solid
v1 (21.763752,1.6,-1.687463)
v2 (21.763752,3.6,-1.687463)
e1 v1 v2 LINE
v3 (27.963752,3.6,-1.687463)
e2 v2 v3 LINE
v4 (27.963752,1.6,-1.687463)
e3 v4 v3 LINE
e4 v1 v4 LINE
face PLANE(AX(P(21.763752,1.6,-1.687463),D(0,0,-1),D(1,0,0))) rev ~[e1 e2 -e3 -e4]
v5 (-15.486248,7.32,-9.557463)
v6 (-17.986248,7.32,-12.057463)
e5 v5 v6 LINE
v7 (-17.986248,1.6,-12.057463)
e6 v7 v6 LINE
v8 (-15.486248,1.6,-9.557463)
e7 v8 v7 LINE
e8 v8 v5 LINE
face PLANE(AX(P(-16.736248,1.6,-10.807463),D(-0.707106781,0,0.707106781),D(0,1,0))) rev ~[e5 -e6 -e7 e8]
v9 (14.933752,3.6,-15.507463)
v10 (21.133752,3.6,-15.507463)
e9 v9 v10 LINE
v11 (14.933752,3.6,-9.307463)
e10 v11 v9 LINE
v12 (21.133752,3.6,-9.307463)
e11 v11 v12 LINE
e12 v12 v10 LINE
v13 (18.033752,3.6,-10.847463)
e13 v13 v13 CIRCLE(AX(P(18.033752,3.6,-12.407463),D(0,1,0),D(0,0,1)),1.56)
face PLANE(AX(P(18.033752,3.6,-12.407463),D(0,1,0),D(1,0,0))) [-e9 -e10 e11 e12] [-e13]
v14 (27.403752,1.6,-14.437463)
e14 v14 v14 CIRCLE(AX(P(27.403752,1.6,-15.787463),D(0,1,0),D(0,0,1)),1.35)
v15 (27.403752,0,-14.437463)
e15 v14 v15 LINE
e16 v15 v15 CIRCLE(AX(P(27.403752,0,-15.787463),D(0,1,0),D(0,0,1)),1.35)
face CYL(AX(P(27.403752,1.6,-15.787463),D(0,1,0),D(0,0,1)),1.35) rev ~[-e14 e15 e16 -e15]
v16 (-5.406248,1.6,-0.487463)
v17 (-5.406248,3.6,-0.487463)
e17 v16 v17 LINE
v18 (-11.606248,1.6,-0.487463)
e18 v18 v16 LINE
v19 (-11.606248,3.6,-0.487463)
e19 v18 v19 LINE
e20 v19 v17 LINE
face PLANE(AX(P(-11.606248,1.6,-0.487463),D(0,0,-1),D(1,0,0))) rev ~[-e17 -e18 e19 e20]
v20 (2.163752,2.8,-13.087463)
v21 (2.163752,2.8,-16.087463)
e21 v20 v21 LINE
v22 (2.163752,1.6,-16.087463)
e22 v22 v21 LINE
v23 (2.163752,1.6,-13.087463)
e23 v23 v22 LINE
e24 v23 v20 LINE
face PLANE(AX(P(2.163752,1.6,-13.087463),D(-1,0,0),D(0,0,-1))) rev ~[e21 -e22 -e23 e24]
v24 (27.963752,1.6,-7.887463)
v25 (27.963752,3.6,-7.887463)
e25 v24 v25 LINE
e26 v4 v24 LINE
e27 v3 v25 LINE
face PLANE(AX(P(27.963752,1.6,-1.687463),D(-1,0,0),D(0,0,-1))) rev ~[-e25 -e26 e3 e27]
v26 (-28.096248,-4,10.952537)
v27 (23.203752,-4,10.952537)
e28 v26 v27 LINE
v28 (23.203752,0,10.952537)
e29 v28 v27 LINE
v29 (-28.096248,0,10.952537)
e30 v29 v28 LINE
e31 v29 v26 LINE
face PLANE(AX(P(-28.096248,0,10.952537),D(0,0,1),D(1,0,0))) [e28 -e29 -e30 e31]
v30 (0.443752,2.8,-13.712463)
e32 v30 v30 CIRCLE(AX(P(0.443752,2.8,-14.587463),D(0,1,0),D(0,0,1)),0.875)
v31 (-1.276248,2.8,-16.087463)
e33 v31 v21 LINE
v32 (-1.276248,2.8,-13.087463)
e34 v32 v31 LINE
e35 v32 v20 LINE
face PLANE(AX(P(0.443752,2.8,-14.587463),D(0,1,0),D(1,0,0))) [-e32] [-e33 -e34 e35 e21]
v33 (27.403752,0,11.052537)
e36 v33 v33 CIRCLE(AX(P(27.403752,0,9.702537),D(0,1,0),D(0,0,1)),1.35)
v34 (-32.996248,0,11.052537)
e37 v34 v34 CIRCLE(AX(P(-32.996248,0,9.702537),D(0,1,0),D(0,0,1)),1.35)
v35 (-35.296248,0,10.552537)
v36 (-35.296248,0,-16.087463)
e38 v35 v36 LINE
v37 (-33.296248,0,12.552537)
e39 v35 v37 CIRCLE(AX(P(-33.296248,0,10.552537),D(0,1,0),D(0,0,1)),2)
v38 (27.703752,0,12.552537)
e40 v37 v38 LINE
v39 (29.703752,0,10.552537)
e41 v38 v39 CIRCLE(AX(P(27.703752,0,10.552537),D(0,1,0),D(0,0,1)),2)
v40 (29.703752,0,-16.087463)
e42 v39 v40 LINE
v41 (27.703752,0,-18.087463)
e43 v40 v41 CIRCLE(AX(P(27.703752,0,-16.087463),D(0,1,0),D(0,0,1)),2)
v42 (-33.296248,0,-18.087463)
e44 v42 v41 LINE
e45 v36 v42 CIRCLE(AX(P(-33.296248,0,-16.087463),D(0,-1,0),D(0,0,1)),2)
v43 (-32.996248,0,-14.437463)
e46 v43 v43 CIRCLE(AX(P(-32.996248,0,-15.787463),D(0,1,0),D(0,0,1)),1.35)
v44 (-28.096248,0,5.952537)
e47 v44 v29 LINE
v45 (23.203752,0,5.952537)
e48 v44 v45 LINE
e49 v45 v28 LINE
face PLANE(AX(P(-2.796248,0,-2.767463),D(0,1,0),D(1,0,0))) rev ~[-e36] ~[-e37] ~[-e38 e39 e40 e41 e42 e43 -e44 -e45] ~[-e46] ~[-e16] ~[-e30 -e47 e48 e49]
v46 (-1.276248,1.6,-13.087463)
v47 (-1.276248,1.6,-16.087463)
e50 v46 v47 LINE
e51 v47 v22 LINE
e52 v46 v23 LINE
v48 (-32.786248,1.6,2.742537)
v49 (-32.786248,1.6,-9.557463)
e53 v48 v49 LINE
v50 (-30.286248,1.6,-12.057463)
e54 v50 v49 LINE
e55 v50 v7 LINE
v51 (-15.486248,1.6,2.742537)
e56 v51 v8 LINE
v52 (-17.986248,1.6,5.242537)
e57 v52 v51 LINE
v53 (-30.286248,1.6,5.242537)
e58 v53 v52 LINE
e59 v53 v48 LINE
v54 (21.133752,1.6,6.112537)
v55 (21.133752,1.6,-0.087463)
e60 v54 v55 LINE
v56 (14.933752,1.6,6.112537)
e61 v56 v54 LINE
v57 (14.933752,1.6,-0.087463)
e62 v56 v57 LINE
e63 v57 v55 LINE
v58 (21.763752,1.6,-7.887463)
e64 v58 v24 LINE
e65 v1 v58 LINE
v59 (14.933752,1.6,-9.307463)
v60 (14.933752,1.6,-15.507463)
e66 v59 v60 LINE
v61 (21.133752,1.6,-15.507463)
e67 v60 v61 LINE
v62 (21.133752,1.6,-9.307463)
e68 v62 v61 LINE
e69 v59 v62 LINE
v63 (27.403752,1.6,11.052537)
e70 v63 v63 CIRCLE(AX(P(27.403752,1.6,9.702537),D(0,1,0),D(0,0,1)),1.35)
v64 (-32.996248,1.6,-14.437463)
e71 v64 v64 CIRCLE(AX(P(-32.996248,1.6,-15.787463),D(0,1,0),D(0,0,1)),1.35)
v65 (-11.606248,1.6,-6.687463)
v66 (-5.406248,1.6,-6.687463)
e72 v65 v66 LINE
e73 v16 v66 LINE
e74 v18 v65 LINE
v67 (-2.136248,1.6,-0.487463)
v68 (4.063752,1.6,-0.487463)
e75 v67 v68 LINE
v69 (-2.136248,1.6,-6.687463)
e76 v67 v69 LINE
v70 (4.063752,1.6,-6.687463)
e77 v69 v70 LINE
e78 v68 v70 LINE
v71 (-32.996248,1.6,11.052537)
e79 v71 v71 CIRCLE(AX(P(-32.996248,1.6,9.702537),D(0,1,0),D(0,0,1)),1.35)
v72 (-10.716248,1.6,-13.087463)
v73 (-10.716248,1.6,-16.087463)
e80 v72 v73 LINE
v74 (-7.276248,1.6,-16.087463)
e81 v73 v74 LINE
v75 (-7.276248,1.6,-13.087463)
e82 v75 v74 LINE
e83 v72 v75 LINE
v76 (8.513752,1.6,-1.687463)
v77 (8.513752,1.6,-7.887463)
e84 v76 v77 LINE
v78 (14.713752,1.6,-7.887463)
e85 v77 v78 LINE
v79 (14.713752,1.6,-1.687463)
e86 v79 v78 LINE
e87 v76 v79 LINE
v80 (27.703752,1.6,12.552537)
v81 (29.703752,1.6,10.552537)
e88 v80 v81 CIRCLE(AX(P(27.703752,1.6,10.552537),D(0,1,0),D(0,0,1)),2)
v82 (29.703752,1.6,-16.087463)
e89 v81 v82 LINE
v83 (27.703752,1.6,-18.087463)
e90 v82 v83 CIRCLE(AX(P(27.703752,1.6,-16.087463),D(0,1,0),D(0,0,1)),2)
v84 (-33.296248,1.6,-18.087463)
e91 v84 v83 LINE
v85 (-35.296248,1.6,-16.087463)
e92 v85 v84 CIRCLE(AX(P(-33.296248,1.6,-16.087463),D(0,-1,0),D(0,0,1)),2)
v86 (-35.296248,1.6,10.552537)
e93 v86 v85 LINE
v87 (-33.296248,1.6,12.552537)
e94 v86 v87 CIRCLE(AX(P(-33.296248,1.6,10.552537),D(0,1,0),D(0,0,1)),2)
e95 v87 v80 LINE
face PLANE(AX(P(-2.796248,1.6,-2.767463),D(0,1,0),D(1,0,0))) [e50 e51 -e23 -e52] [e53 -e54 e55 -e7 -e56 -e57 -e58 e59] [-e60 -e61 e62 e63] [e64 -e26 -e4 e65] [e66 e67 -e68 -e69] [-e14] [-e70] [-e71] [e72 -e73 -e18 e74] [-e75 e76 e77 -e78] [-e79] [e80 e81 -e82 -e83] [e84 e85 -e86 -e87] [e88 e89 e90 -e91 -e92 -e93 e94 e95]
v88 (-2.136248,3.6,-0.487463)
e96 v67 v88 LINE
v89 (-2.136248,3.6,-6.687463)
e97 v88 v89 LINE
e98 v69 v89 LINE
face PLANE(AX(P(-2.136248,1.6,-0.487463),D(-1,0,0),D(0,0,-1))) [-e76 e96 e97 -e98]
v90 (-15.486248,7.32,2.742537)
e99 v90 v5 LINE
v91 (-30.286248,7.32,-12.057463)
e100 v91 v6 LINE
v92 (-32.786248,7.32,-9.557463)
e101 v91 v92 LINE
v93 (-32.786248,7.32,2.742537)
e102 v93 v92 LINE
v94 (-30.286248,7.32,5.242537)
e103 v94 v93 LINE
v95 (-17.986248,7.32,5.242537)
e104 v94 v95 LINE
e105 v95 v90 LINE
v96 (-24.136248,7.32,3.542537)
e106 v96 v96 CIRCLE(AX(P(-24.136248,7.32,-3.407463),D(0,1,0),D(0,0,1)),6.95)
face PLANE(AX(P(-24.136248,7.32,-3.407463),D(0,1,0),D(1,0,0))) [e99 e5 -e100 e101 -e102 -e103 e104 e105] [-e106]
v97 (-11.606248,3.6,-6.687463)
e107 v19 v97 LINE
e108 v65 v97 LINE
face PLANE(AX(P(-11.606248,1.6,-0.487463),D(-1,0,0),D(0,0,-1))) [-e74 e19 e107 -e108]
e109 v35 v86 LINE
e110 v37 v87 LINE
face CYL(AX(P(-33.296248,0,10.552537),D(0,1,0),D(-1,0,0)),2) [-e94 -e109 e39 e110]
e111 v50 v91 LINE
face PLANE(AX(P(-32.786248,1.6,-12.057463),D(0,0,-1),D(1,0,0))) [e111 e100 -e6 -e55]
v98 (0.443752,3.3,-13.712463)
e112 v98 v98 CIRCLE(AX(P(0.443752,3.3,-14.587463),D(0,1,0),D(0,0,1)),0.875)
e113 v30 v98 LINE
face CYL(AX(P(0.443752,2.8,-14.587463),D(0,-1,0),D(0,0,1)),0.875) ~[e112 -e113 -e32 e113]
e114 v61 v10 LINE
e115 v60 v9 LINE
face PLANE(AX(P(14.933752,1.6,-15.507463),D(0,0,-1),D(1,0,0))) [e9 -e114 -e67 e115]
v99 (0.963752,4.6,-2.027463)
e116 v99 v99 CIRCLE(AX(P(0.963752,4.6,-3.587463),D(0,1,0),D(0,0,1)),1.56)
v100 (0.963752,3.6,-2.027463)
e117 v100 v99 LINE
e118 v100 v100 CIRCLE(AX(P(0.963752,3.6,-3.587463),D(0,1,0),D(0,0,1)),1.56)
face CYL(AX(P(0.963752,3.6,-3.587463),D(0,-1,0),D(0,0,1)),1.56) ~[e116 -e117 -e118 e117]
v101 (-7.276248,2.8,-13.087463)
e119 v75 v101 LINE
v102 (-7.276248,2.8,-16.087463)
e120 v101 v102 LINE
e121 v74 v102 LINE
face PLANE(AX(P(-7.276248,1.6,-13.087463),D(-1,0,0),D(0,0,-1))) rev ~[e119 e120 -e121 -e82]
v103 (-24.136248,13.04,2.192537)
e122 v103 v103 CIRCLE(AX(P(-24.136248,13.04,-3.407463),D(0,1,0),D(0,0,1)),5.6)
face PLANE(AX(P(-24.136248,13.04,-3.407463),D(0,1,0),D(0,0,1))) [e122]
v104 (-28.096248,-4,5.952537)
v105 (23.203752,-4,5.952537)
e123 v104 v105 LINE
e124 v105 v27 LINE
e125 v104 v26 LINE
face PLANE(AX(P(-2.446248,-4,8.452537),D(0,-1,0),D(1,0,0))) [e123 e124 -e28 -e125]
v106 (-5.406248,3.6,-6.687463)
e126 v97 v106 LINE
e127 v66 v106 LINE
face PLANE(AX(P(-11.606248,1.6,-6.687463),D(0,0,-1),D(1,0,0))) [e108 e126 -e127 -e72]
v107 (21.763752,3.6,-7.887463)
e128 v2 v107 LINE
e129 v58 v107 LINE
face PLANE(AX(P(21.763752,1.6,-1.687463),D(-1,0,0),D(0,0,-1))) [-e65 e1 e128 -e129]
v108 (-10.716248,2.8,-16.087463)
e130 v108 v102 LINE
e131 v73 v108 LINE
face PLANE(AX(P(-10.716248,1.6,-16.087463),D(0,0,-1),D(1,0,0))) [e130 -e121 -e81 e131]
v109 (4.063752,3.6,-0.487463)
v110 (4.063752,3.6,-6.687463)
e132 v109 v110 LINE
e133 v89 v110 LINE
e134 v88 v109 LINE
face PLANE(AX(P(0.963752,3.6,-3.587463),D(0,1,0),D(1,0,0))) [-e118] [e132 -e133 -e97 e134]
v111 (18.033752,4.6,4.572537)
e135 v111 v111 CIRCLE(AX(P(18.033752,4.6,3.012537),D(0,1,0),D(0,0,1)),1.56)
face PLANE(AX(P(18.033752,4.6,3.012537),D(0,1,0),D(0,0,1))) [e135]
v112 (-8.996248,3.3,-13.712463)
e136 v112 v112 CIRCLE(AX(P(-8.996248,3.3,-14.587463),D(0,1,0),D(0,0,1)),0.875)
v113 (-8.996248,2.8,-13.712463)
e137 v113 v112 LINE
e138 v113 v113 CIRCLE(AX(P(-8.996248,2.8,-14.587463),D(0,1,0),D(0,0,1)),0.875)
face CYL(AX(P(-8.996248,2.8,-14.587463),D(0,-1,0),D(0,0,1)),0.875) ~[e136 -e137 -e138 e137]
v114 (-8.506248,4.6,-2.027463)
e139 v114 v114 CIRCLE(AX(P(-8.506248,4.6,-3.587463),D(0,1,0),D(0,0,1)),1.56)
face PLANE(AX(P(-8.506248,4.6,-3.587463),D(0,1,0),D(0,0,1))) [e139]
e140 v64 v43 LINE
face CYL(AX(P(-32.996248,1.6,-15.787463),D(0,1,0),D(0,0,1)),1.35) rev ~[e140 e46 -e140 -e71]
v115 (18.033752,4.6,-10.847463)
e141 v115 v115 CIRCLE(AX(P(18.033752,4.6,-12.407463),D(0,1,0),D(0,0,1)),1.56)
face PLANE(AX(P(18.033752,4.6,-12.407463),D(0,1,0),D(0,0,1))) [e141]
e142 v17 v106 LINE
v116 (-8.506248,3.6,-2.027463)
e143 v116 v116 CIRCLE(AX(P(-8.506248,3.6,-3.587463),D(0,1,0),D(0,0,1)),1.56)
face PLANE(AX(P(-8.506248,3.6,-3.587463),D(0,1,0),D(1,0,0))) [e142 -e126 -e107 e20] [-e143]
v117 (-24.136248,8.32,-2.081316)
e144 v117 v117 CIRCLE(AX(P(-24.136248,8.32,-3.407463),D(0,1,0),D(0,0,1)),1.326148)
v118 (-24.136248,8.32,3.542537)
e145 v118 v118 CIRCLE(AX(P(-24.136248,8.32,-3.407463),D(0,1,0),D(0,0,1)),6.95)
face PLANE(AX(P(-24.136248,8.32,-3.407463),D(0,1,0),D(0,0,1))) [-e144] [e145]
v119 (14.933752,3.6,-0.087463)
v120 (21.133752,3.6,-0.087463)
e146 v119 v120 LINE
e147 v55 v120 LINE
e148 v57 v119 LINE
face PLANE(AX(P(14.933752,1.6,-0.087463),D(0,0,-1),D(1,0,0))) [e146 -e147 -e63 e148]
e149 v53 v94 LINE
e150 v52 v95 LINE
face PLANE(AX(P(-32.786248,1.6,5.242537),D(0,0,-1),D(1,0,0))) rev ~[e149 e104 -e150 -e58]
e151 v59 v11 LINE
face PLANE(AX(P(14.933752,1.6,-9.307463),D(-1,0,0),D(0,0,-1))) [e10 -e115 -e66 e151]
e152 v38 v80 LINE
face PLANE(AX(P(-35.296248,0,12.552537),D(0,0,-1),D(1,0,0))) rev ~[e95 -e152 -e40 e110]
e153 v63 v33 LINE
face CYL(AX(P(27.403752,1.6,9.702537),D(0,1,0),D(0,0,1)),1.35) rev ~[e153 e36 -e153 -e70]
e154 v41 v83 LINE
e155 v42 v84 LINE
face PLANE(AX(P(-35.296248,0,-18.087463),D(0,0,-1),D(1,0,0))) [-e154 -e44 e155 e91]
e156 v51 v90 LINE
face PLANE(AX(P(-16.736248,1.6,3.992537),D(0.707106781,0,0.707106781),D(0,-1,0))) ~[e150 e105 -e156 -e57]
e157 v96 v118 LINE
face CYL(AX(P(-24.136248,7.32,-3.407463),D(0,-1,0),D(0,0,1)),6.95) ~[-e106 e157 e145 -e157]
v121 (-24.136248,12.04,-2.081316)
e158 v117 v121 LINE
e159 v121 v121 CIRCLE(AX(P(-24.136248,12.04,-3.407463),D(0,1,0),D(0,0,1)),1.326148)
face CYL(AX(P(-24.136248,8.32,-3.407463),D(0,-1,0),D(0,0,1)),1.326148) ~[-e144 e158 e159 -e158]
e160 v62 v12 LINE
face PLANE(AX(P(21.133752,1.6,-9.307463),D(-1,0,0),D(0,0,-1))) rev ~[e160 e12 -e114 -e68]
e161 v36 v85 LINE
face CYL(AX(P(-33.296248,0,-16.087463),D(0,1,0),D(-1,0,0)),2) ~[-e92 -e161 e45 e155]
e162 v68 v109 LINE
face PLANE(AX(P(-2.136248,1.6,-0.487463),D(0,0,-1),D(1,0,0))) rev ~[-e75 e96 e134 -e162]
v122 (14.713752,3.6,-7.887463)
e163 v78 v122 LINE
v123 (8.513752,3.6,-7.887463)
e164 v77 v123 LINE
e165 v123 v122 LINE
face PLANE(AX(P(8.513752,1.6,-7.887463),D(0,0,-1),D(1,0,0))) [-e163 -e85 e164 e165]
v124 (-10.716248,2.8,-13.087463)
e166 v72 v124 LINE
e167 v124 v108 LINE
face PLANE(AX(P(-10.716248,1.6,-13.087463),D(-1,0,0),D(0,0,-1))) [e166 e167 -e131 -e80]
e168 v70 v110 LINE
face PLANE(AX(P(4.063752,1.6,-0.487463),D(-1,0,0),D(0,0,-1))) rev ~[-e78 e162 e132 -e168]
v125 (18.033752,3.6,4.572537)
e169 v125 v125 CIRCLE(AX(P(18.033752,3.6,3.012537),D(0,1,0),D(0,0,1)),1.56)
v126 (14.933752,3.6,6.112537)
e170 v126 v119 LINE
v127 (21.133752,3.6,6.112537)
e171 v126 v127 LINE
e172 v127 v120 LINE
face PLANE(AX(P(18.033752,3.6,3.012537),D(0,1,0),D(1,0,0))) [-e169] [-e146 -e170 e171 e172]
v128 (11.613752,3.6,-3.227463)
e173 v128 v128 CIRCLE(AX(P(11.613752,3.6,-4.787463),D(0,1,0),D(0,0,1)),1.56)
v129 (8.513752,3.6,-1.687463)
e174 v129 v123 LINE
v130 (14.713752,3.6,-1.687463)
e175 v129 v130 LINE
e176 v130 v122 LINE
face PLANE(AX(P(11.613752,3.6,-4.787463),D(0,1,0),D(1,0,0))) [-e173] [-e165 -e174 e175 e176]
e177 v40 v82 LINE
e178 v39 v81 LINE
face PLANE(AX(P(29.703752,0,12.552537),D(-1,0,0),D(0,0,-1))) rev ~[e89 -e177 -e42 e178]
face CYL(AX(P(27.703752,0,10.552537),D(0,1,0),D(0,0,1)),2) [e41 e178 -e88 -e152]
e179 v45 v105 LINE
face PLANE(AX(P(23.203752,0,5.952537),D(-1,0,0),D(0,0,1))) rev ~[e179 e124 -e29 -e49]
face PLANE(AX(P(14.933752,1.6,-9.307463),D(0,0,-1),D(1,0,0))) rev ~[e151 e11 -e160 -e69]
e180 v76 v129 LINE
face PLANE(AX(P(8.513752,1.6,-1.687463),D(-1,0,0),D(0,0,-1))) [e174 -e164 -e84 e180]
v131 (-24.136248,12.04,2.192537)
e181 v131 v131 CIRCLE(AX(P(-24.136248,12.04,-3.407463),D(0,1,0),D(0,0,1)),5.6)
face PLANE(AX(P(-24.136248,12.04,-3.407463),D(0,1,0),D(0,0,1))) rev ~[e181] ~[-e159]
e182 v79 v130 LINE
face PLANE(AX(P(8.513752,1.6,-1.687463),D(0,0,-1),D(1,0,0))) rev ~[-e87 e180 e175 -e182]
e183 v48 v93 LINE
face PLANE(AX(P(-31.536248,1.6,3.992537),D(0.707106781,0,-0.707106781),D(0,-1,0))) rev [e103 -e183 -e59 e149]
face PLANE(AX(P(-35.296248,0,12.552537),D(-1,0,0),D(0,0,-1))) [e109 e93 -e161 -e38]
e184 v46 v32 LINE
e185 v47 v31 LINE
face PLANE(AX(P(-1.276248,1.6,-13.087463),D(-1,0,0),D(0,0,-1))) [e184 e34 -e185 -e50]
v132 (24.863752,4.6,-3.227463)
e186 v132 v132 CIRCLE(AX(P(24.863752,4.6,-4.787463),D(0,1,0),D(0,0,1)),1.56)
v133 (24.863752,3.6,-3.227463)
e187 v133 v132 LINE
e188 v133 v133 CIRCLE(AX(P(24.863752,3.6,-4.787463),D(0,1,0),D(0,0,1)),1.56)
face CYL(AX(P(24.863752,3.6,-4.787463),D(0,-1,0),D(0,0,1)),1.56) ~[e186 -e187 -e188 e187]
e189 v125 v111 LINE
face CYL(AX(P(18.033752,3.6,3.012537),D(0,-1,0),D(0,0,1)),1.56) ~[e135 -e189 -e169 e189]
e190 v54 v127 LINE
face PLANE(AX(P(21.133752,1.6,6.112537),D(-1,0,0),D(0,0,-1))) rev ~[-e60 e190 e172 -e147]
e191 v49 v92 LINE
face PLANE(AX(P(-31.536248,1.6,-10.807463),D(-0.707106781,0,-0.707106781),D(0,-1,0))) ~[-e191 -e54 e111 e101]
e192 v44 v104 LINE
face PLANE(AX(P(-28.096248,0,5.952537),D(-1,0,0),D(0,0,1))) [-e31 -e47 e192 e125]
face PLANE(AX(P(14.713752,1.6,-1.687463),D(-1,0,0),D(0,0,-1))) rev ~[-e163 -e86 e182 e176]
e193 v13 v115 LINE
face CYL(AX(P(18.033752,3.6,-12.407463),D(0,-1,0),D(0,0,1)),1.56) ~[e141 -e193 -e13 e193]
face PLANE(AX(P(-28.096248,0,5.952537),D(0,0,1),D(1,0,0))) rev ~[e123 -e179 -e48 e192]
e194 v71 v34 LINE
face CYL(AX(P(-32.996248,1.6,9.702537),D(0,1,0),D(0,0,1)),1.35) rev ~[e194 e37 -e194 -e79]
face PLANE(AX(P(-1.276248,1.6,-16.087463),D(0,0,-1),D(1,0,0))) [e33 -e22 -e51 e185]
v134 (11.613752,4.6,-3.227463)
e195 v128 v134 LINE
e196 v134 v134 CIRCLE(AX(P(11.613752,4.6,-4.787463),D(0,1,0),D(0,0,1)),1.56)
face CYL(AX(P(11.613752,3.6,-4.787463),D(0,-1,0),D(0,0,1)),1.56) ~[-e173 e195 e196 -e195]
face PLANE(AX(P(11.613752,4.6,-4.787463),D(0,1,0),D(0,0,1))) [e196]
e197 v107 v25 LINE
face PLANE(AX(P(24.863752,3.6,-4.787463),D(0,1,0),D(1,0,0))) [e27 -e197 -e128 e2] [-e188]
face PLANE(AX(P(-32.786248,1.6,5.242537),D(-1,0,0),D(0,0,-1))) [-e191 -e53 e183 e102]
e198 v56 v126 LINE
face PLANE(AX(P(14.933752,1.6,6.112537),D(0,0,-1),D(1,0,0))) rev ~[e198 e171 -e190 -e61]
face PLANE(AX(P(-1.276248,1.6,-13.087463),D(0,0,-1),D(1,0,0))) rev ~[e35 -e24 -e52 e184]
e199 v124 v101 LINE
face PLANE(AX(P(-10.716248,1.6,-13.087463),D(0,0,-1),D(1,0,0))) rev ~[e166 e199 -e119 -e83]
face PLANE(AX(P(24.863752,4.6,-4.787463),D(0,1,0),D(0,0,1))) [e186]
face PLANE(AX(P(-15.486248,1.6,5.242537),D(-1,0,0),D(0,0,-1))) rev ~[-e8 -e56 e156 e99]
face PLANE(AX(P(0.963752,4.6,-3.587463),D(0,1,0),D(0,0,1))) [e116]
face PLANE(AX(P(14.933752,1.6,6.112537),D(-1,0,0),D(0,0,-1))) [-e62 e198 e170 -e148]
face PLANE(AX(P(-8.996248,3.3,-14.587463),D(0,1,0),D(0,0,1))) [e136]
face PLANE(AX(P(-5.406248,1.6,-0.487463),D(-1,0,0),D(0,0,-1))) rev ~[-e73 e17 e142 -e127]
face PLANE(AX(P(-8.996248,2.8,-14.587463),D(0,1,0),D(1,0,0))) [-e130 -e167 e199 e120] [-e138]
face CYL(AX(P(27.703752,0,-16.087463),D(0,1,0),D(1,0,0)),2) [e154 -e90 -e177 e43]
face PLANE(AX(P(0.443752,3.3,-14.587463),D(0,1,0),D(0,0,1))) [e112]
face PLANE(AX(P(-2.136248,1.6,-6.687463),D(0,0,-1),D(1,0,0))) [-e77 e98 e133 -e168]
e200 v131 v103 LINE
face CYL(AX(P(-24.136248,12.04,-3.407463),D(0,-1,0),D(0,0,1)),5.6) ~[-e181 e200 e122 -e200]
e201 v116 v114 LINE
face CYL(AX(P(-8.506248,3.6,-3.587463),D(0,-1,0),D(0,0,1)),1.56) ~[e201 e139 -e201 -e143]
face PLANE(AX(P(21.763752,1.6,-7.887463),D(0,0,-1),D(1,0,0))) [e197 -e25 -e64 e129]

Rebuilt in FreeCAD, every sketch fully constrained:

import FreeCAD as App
import Part
import Sketcher
from FreeCAD import Vector
Q = App.Units.Quantity


def edges_at(feature, points):
    """Names of the edges that pass closest to the given points."""
    edges = feature.Shape.Edges
    near = lambda p: min(range(len(edges)), key=lambda i: edges[i].distToShape(Part.Vertex(*p))[0])
    return sorted({f"Edge{near(p) + 1}" for p in points})

doc = App.newDocument("Part")
params = doc.addObject("Spreadsheet::Sheet", "Params")
for row, (alias, value) in enumerate([
    ("sketch1_width", "65 mm"),
    ("sketch1_height", "30.64 mm"),
    ("pad1_length", "1.6 mm"),
    ("fillet_radius", "2 mm"),
    ("sketch2_diameter", "2.7 mm"),
    ("pocket1_length", "1.6 mm"),
    ("sketch3_height", "5 mm"),
    ("sketch3_width", "51.3 mm"),
    ("pad2_length", "4 mm"),
    ("sketch4_width", "17.3 mm"),
    ("pad3_length", "5.72 mm"),
    ("chamfer_size", "2.5 mm"),
    ("sketch5_diameter", "13.9 mm"),
    ("pad4_length", "1 mm"),
    ("pad5_length", "3.72 mm"),
    ("sketch7_diameter", "11.2 mm"),
    ("pad6_length", "1 mm"),
    ("sketch8_width", "6.2 mm"),
    ("pad7_length", "2 mm"),
    ("sketch9_diameter", "3.12 mm"),
    ("pad8_length", "1 mm"),
    ("sketch10_height", "3 mm"),
    ("sketch10_width", "3.44 mm"),
    ("pad9_length", "1.2 mm"),
    ("sketch11_diameter", "1.75 mm"),
    ("pad10_length", "0.5 mm"),
], start=1):
    params.set(f"A{row}", alias)
    params.set(f"B{row}", "=" + value)
    params.setAlias(f"B{row}", alias)

body = doc.addObject("PartDesign::Body", "Body")

# Sketch on XZ plane
sketch1 = body.newObject("Sketcher::SketchObject", "Sketch")
sketch1.AttachmentSupport = (doc.getObject("XZ_Plane"), [""])
sketch1.MapMode = "FlatFace"
sketch1.addGeometry(Part.LineSegment(Vector(-35.296248, -18.087463, 0), Vector(-35.296248, 12.552537, 0)), False)
sketch1.addGeometry(Part.LineSegment(Vector(-35.296248, 12.552537, 0), Vector(29.703752, 12.552537, 0)), False)
sketch1.addGeometry(Part.LineSegment(Vector(29.703752, 12.552537, 0), Vector(29.703752, -18.087463, 0)), False)
sketch1.addGeometry(Part.LineSegment(Vector(29.703752, -18.087463, 0), Vector(-35.296248, -18.087463, 0)), False)
sketch1.addConstraint(Sketcher.Constraint("Coincident", 0, 2, 1, 1))
sketch1.addConstraint(Sketcher.Constraint("Coincident", 1, 2, 2, 1))
sketch1.addConstraint(Sketcher.Constraint("Coincident", 2, 2, 3, 1))
sketch1.addConstraint(Sketcher.Constraint("Coincident", 3, 2, 0, 1))
sketch1.addConstraint(Sketcher.Constraint("Vertical", 0))
sketch1.addConstraint(Sketcher.Constraint("Horizontal", 1))
sketch1.addConstraint(Sketcher.Constraint("Vertical", 2))
sketch1.addConstraint(Sketcher.Constraint("Horizontal", 3))
sketch1.addConstraint(Sketcher.Constraint("DistanceX", 1, 1, 1, 2, Q("65 mm")))
sketch1.addConstraint(Sketcher.Constraint("DistanceY", 0, 1, 0, 2, Q("30.64 mm")))
sketch1.addConstraint(Sketcher.Constraint("DistanceX", 0, 2, -1, 1, Q("35.296248 mm")))
sketch1.addConstraint(Sketcher.Constraint("DistanceY", -1, 1, 0, 2, Q("12.552537 mm")))
sketch1.setExpression("Constraints[8]", "Params.sketch1_width")
sketch1.setExpression("Constraints[9]", "Params.sketch1_height")
pad1 = body.newObject("PartDesign::Pad", "Pad")
pad1.Profile = sketch1
pad1.setExpression("Length", "Params.pad1_length")
pad1.Reversed = True
doc.recompute()

fillet = body.newObject("PartDesign::Fillet", "Fillet")
fillet.Base = (pad1, edges_at(pad1, [
    (-35.296, 0.8, -18.087),
    (29.704, 0.8, -18.087),
    (29.704, 0.8, 12.553),
    (-35.296, 0.8, 12.553),
]))
fillet.setExpression("Radius", "Params.fillet_radius")

# Sketch on XZ plane
sketch2 = body.newObject("Sketcher::SketchObject", "Sketch001")
sketch2.AttachmentSupport = (doc.getObject("XZ_Plane"), [""])
sketch2.MapMode = "FlatFace"
sketch2.AttachmentOffset = App.Placement(Vector(0, 0, -1.6), App.Rotation())
sketch2.addGeometry(Part.Circle(Vector(-32.996248, -15.787463, 0), Vector(0, 0, 1), 1.35), False)
sketch2.addGeometry(Part.Circle(Vector(27.403752, -15.787463, 0), Vector(0, 0, 1), 1.35), False)
sketch2.addGeometry(Part.Circle(Vector(27.403752, 9.702537, 0), Vector(0, 0, 1), 1.35), False)
sketch2.addGeometry(Part.Circle(Vector(-32.996248, 9.702537, 0), Vector(0, 0, 1), 1.35), False)
sketch2.addConstraint(Sketcher.Constraint("Equal", 0, 1))
sketch2.addConstraint(Sketcher.Constraint("Equal", 1, 2))
sketch2.addConstraint(Sketcher.Constraint("Equal", 2, 3))
sketch2.addConstraint(Sketcher.Constraint("Horizontal", 0, 3, 1, 3))
sketch2.addConstraint(Sketcher.Constraint("Horizontal", 2, 3, 3, 3))
sketch2.addConstraint(Sketcher.Constraint("Vertical", 1, 3, 2, 3))
sketch2.addConstraint(Sketcher.Constraint("Vertical", 0, 3, 3, 3))
sketch2.addConstraint(Sketcher.Constraint("Diameter", 0, Q("2.7 mm")))
sketch2.addConstraint(Sketcher.Constraint("DistanceX", 0, 3, 1, 3, Q("60.4 mm")))
sketch2.addConstraint(Sketcher.Constraint("DistanceY", 1, 3, 2, 3, Q("25.49 mm")))
sketch2.addConstraint(Sketcher.Constraint("DistanceX", 0, 3, -1, 1, Q("32.996248 mm")))
sketch2.addConstraint(Sketcher.Constraint("DistanceY", 0, 3, -1, 1, Q("15.787463 mm")))
sketch2.setExpression("Constraints[7]", "Params.sketch2_diameter")
pocket1 = body.newObject("PartDesign::Pocket", "Pocket")
pocket1.Profile = sketch2
pocket1.setExpression("Length", "Params.pocket1_length")
pocket1.Reversed = True

# Sketch on XZ plane
sketch3 = body.newObject("Sketcher::SketchObject", "Sketch002")
sketch3.AttachmentSupport = (doc.getObject("XZ_Plane"), [""])
sketch3.MapMode = "FlatFace"
sketch3.addGeometry(Part.LineSegment(Vector(-28.096248, 10.952537, 0), Vector(-28.096248, 5.952537, 0)), False)
sketch3.addGeometry(Part.LineSegment(Vector(-28.096248, 5.952537, 0), Vector(23.203752, 5.952537, 0)), False)
sketch3.addGeometry(Part.LineSegment(Vector(23.203752, 5.952537, 0), Vector(23.203752, 10.952537, 0)), False)
sketch3.addGeometry(Part.LineSegment(Vector(23.203752, 10.952537, 0), Vector(-28.096248, 10.952537, 0)), False)
sketch3.addConstraint(Sketcher.Constraint("Coincident", 0, 2, 1, 1))
sketch3.addConstraint(Sketcher.Constraint("Coincident", 1, 2, 2, 1))
sketch3.addConstraint(Sketcher.Constraint("Coincident", 2, 2, 3, 1))
sketch3.addConstraint(Sketcher.Constraint("Coincident", 3, 2, 0, 1))
sketch3.addConstraint(Sketcher.Constraint("Vertical", 0))
sketch3.addConstraint(Sketcher.Constraint("Horizontal", 1))
sketch3.addConstraint(Sketcher.Constraint("Vertical", 2))
sketch3.addConstraint(Sketcher.Constraint("Horizontal", 3))
sketch3.addConstraint(Sketcher.Constraint("DistanceY", 0, 2, 0, 1, Q("5 mm")))
sketch3.addConstraint(Sketcher.Constraint("DistanceX", 1, 1, 1, 2, Q("51.3 mm")))
sketch3.addConstraint(Sketcher.Constraint("DistanceX", 0, 2, -1, 1, Q("28.096248 mm")))
sketch3.addConstraint(Sketcher.Constraint("DistanceY", -1, 1, 0, 2, Q("5.952537 mm")))
sketch3.setExpression("Constraints[8]", "Params.sketch3_height")
sketch3.setExpression("Constraints[9]", "Params.sketch3_width")
pad2 = body.newObject("PartDesign::Pad", "Pad001")
pad2.Profile = sketch3
pad2.setExpression("Length", "Params.pad2_length")

# Sketch on XZ plane
sketch4 = body.newObject("Sketcher::SketchObject", "Sketch003")
sketch4.AttachmentSupport = (doc.getObject("XZ_Plane"), [""])
sketch4.MapMode = "FlatFace"
sketch4.AttachmentOffset = App.Placement(Vector(0, 0, -1.6), App.Rotation())
sketch4.addGeometry(Part.LineSegment(Vector(-32.786248, -12.057463, 0), Vector(-32.786248, 5.242537, 0)), False)
sketch4.addGeometry(Part.LineSegment(Vector(-32.786248, 5.242537, 0), Vector(-15.486248, 5.242537, 0)), False)
sketch4.addGeometry(Part.LineSegment(Vector(-15.486248, 5.242537, 0), Vector(-15.486248, -12.057463, 0)), False)
sketch4.addGeometry(Part.LineSegment(Vector(-15.486248, -12.057463, 0), Vector(-32.786248, -12.057463, 0)), False)
sketch4.addConstraint(Sketcher.Constraint("Coincident", 0, 2, 1, 1))
sketch4.addConstraint(Sketcher.Constraint("Coincident", 1, 2, 2, 1))
sketch4.addConstraint(Sketcher.Constraint("Coincident", 2, 2, 3, 1))
sketch4.addConstraint(Sketcher.Constraint("Coincident", 3, 2, 0, 1))
sketch4.addConstraint(Sketcher.Constraint("Vertical", 0))
sketch4.addConstraint(Sketcher.Constraint("Horizontal", 1))
sketch4.addConstraint(Sketcher.Constraint("Vertical", 2))
sketch4.addConstraint(Sketcher.Constraint("Horizontal", 3))
sketch4.addConstraint(Sketcher.Constraint("Equal", 3, 0))
sketch4.addConstraint(Sketcher.Constraint("DistanceX", 1, 1, 1, 2, Q("17.3 mm")))
sketch4.addConstraint(Sketcher.Constraint("DistanceX", 0, 2, -1, 1, Q("32.786248 mm")))
sketch4.addConstraint(Sketcher.Constraint("DistanceY", -1, 1, 0, 2, Q("5.242537 mm")))
sketch4.setExpression("Constraints[9]", "Params.sketch4_width")
pad3 = body.newObject("PartDesign::Pad", "Pad002")
pad3.Profile = sketch4
pad3.setExpression("Length", "Params.pad3_length")
pad3.Reversed = True
doc.recompute()

chamfer = body.newObject("PartDesign::Chamfer", "Chamfer")
chamfer.Base = (pad3, edges_at(pad3, [
    (-32.786, 4.46, -12.057),
    (-32.786, 4.46, 5.243),
    (-15.486, 4.46, 5.243),
    (-15.486, 4.46, -12.057),
]))
chamfer.setExpression("Size", "Params.chamfer_size")

# Sketch on XZ plane
sketch5 = body.newObject("Sketcher::SketchObject", "Sketch004")
sketch5.AttachmentSupport = (doc.getObject("XZ_Plane"), [""])
sketch5.MapMode = "FlatFace"
sketch5.AttachmentOffset = App.Placement(Vector(0, 0, -7.32), App.Rotation())
sketch5.addGeometry(Part.Circle(Vector(-24.136248, -3.407463, 0), Vector(0, 0, 1), 6.95), False)
sketch5.addConstraint(Sketcher.Constraint("Diameter", 0, Q("13.9 mm")))
sketch5.addConstraint(Sketcher.Constraint("DistanceX", 0, 3, -1, 1, Q("24.136248 mm")))
sketch5.addConstraint(Sketcher.Constraint("DistanceY", 0, 3, -1, 1, Q("3.407463 mm")))
sketch5.setExpression("Constraints[0]", "Params.sketch5_diameter")
pad4 = body.newObject("PartDesign::Pad", "Pad003")
pad4.Profile = sketch5
pad4.setExpression("Length", "Params.pad4_length")
pad4.Reversed = True

# Sketch on XZ plane
sketch6 = body.newObject("Sketcher::SketchObject", "Sketch005")
sketch6.AttachmentSupport = (doc.getObject("XZ_Plane"), [""])
sketch6.MapMode = "FlatFace"
sketch6.AttachmentOffset = App.Placement(Vector(0, 0, -8.32), App.Rotation())
sketch6.addGeometry(Part.Circle(Vector(-24.136248, -3.407463, 0), Vector(0, 0, 1), 1.326148), False)
sketch6.addConstraint(Sketcher.Constraint("Diameter", 0, Q("2.652295 mm")))
sketch6.addConstraint(Sketcher.Constraint("DistanceX", 0, 3, -1, 1, Q("24.136248 mm")))
sketch6.addConstraint(Sketcher.Constraint("DistanceY", 0, 3, -1, 1, Q("3.407463 mm")))
pad5 = body.newObject("PartDesign::Pad", "Pad004")
pad5.Profile = sketch6
pad5.setExpression("Length", "Params.pad5_length")
pad5.Reversed = True

# Sketch on XZ plane
sketch7 = body.newObject("Sketcher::SketchObject", "Sketch006")
sketch7.AttachmentSupport = (doc.getObject("XZ_Plane"), [""])
sketch7.MapMode = "FlatFace"
sketch7.AttachmentOffset = App.Placement(Vector(0, 0, -12.04), App.Rotation())
sketch7.addGeometry(Part.Circle(Vector(-24.136248, -3.407463, 0), Vector(0, 0, 1), 5.6), False)
sketch7.addConstraint(Sketcher.Constraint("Diameter", 0, Q("11.2 mm")))
sketch7.addConstraint(Sketcher.Constraint("DistanceX", 0, 3, -1, 1, Q("24.136248 mm")))
sketch7.addConstraint(Sketcher.Constraint("DistanceY", 0, 3, -1, 1, Q("3.407463 mm")))
sketch7.setExpression("Constraints[0]", "Params.sketch7_diameter")
pad6 = body.newObject("PartDesign::Pad", "Pad005")
pad6.Profile = sketch7
pad6.setExpression("Length", "Params.pad6_length")
pad6.Reversed = True

# Sketch on XZ plane
sketch8 = body.newObject("Sketcher::SketchObject", "Sketch007")
sketch8.AttachmentSupport = (doc.getObject("XZ_Plane"), [""])
sketch8.MapMode = "FlatFace"
sketch8.AttachmentOffset = App.Placement(Vector(0, 0, -1.6), App.Rotation())
sketch8.addGeometry(Part.LineSegment(Vector(-11.606248, -6.687463, 0), Vector(-11.606248, -0.487463, 0)), False)
sketch8.addGeometry(Part.LineSegment(Vector(-11.606248, -0.487463, 0), Vector(-5.406248, -0.487463, 0)), False)
sketch8.addGeometry(Part.LineSegment(Vector(-5.406248, -0.487463, 0), Vector(-5.406248, -6.687463, 0)), False)
sketch8.addGeometry(Part.LineSegment(Vector(-5.406248, -6.687463, 0), Vector(-11.606248, -6.687463, 0)), False)
sketch8.addGeometry(Part.LineSegment(Vector(-2.136248, -6.687463, 0), Vector(-2.136248, -0.487463, 0)), False)
sketch8.addGeometry(Part.LineSegment(Vector(-2.136248, -0.487463, 0), Vector(4.063752, -0.487463, 0)), False)
sketch8.addGeometry(Part.LineSegment(Vector(4.063752, -0.487463, 0), Vector(4.063752, -6.687463, 0)), False)
sketch8.addGeometry(Part.LineSegment(Vector(4.063752, -6.687463, 0), Vector(-2.136248, -6.687463, 0)), False)
sketch8.addGeometry(Part.LineSegment(Vector(8.513752, -7.887463, 0), Vector(8.513752, -1.687463, 0)), False)
sketch8.addGeometry(Part.LineSegment(Vector(8.513752, -1.687463, 0), Vector(14.713752, -1.687463, 0)), False)
sketch8.addGeometry(Part.LineSegment(Vector(14.713752, -1.687463, 0), Vector(14.713752, -7.887463, 0)), False)
sketch8.addGeometry(Part.LineSegment(Vector(14.713752, -7.887463, 0), Vector(8.513752, -7.887463, 0)), False)
sketch8.addGeometry(Part.LineSegment(Vector(14.933752, -15.507463, 0), Vector(14.933752, -9.307463, 0)), False)
sketch8.addGeometry(Part.LineSegment(Vector(14.933752, -9.307463, 0), Vector(21.133752, -9.307463, 0)), False)
sketch8.addGeometry(Part.LineSegment(Vector(21.133752, -9.307463, 0), Vector(21.133752, -15.507463, 0)), False)
sketch8.addGeometry(Part.LineSegment(Vector(21.133752, -15.507463, 0), Vector(14.933752, -15.507463, 0)), False)
sketch8.addGeometry(Part.LineSegment(Vector(21.763752, -7.887463, 0), Vector(21.763752, -1.687463, 0)), False)
sketch8.addGeometry(Part.LineSegment(Vector(21.763752, -1.687463, 0), Vector(27.963752, -1.687463, 0)), False)
sketch8.addGeometry(Part.LineSegment(Vector(27.963752, -1.687463, 0), Vector(27.963752, -7.887463, 0)), False)
sketch8.addGeometry(Part.LineSegment(Vector(27.963752, -7.887463, 0), Vector(21.763752, -7.887463, 0)), False)
sketch8.addGeometry(Part.LineSegment(Vector(14.933752, -0.087463, 0), Vector(14.933752, 6.112537, 0)), False)
sketch8.addGeometry(Part.LineSegment(Vector(14.933752, 6.112537, 0), Vector(21.133752, 6.112537, 0)), False)
sketch8.addGeometry(Part.LineSegment(Vector(21.133752, 6.112537, 0), Vector(21.133752, -0.087463, 0)), False)
sketch8.addGeometry(Part.LineSegment(Vector(21.133752, -0.087463, 0), Vector(14.933752, -0.087463, 0)), False)
sketch8.addConstraint(Sketcher.Constraint("Coincident", 0, 2, 1, 1))
sketch8.addConstraint(Sketcher.Constraint("Coincident", 1, 2, 2, 1))
sketch8.addConstraint(Sketcher.Constraint("Coincident", 2, 2, 3, 1))
sketch8.addConstraint(Sketcher.Constraint("Coincident", 3, 2, 0, 1))
sketch8.addConstraint(Sketcher.Constraint("Coincident", 4, 2, 5, 1))
sketch8.addConstraint(Sketcher.Constraint("Coincident", 5, 2, 6, 1))
sketch8.addConstraint(Sketcher.Constraint("Coincident", 6, 2, 7, 1))
sketch8.addConstraint(Sketcher.Constraint("Coincident", 7, 2, 4, 1))
sketch8.addConstraint(Sketcher.Constraint("Coincident", 8, 2, 9, 1))
sketch8.addConstraint(Sketcher.Constraint("Coincident", 9, 2, 10, 1))
sketch8.addConstraint(Sketcher.Constraint("Coincident", 10, 2, 11, 1))
sketch8.addConstraint(Sketcher.Constraint("Coincident", 11, 2, 8, 1))
sketch8.addConstraint(Sketcher.Constraint("Coincident", 12, 2, 13, 1))
sketch8.addConstraint(Sketcher.Constraint("Coincident", 13, 2, 14, 1))
sketch8.addConstraint(Sketcher.Constraint("Coincident", 14, 2, 15, 1))
sketch8.addConstraint(Sketcher.Constraint("Coincident", 15, 2, 12, 1))
sketch8.addConstraint(Sketcher.Constraint("Coincident", 16, 2, 17, 1))
sketch8.addConstraint(Sketcher.Constraint("Coincident", 17, 2, 18, 1))
sketch8.addConstraint(Sketcher.Constraint("Coincident", 18, 2, 19, 1))
sketch8.addConstraint(Sketcher.Constraint("Coincident", 19, 2, 16, 1))
sketch8.addConstraint(Sketcher.Constraint("Coincident", 20, 2, 21, 1))
sketch8.addConstraint(Sketcher.Constraint("Coincident", 21, 2, 22, 1))
sketch8.addConstraint(Sketcher.Constraint("Coincident", 22, 2, 23, 1))
sketch8.addConstraint(Sketcher.Constraint("Coincident", 23, 2, 20, 1))
sketch8.addConstraint(Sketcher.Constraint("Vertical", 0))
sketch8.addConstraint(Sketcher.Constraint("Horizontal", 1))
sketch8.addConstraint(Sketcher.Constraint("Vertical", 2))
sketch8.addConstraint(Sketcher.Constraint("Horizontal", 3))
sketch8.addConstraint(Sketcher.Constraint("Vertical", 4))
sketch8.addConstraint(Sketcher.Constraint("Horizontal", 5))
sketch8.addConstraint(Sketcher.Constraint("Vertical", 6))
sketch8.addConstraint(Sketcher.Constraint("Horizontal", 7))
sketch8.addConstraint(Sketcher.Constraint("Vertical", 8))
sketch8.addConstraint(Sketcher.Constraint("Horizontal", 9))
sketch8.addConstraint(Sketcher.Constraint("Vertical", 10))
sketch8.addConstraint(Sketcher.Constraint("Horizontal", 11))
sketch8.addConstraint(Sketcher.Constraint("Vertical", 12))
sketch8.addConstraint(Sketcher.Constraint("Horizontal", 13))
sketch8.addConstraint(Sketcher.Constraint("Vertical", 14))
sketch8.addConstraint(Sketcher.Constraint("Horizontal", 15))
sketch8.addConstraint(Sketcher.Constraint("Vertical", 16))
sketch8.addConstraint(Sketcher.Constraint("Horizontal", 17))
sketch8.addConstraint(Sketcher.Constraint("Vertical", 18))
sketch8.addConstraint(Sketcher.Constraint("Horizontal", 19))
sketch8.addConstraint(Sketcher.Constraint("Vertical", 20))
sketch8.addConstraint(Sketcher.Constraint("Horizontal", 21))
sketch8.addConstraint(Sketcher.Constraint("Vertical", 22))
sketch8.addConstraint(Sketcher.Constraint("Horizontal", 23))
sketch8.addConstraint(Sketcher.Constraint("Horizontal", 1, 2, 4, 2))
sketch8.addConstraint(Sketcher.Constraint("Horizontal", 3, 2, 6, 2))
sketch8.addConstraint(Sketcher.Constraint("Horizontal", 9, 2, 16, 2))
sketch8.addConstraint(Sketcher.Constraint("Horizontal", 11, 2, 18, 2))
sketch8.addConstraint(Sketcher.Constraint("Vertical", 15, 2, 20, 2))
sketch8.addConstraint(Sketcher.Constraint("Vertical", 14, 2, 21, 2))
sketch8.addConstraint(Sketcher.Constraint("Equal", 3, 5))
sketch8.addConstraint(Sketcher.Constraint("Equal", 7, 9))
sketch8.addConstraint(Sketcher.Constraint("Equal", 11, 13))
sketch8.addConstraint(Sketcher.Constraint("Equal", 15, 17))
sketch8.addConstraint(Sketcher.Constraint("Equal", 23, 0))
sketch8.addConstraint(Sketcher.Constraint("Equal", 6, 8))
sketch8.addConstraint(Sketcher.Constraint("Equal", 10, 12))
sketch8.addConstraint(Sketcher.Constraint("Equal", 18, 20))
sketch8.addConstraint(Sketcher.Constraint("DistanceX", 1, 1, 1, 2, Q("6.2 mm")))
sketch8.addConstraint(Sketcher.Constraint("DistanceY", 6, 2, 8, 2, Q("5 mm")))
sketch8.addConstraint(Sketcher.Constraint("DistanceY", 10, 2, 20, 2, Q("14 mm")))
sketch8.addConstraint(Sketcher.Constraint("DistanceX", 1, 2, 4, 2, Q("3.27 mm")))
sketch8.addConstraint(Sketcher.Constraint("DistanceX", 5, 2, 8, 2, Q("4.45 mm")))
sketch8.addConstraint(Sketcher.Constraint("DistanceX", 10, 2, 12, 2, Q("0.22 mm")))
sketch8.addConstraint(Sketcher.Constraint("DistanceY", 12, 2, 10, 2, Q("1.42 mm")))
sketch8.addConstraint(Sketcher.Constraint("DistanceX", 9, 2, 16, 2, Q("7.05 mm")))
sketch8.addConstraint(Sketcher.Constraint("DistanceX", 0, 2, -1, 1, Q("11.606248 mm")))
sketch8.addConstraint(Sketcher.Constraint("DistanceY", 0, 2, -1, 1, Q("0.487463 mm")))
sketch8.setExpression("Constraints[62]", "Params.sketch8_width")
pad7 = body.newObject("PartDesign::Pad", "Pad006")
pad7.Profile = sketch8
pad7.setExpression("Length", "Params.pad7_length")
pad7.Reversed = True

# Sketch on XZ plane
sketch9 = body.newObject("Sketcher::SketchObject", "Sketch008")
sketch9.AttachmentSupport = (doc.getObject("XZ_Plane"), [""])
sketch9.MapMode = "FlatFace"
sketch9.AttachmentOffset = App.Placement(Vector(0, 0, -3.6), App.Rotation())
sketch9.addGeometry(Part.Circle(Vector(-8.506248, -3.587463, 0), Vector(0, 0, 1), 1.56), False)
sketch9.addGeometry(Part.Circle(Vector(0.963752, -3.587463, 0), Vector(0, 0, 1), 1.56), False)
sketch9.addGeometry(Part.Circle(Vector(11.613752, -4.787463, 0), Vector(0, 0, 1), 1.56), False)
sketch9.addGeometry(Part.Circle(Vector(18.033752, -12.407463, 0), Vector(0, 0, 1), 1.56), False)
sketch9.addGeometry(Part.Circle(Vector(24.863752, -4.787463, 0), Vector(0, 0, 1), 1.56), False)
sketch9.addGeometry(Part.Circle(Vector(18.033752, 3.012537, 0), Vector(0, 0, 1), 1.56), False)
sketch9.addConstraint(Sketcher.Constraint("Equal", 0, 1))
sketch9.addConstraint(Sketcher.Constraint("Equal", 1, 2))
sketch9.addConstraint(Sketcher.Constraint("Equal", 2, 3))
sketch9.addConstraint(Sketcher.Constraint("Equal", 3, 4))
sketch9.addConstraint(Sketcher.Constraint("Equal", 4, 5))
sketch9.addConstraint(Sketcher.Constraint("Horizontal", 0, 3, 1, 3))
sketch9.addConstraint(Sketcher.Constraint("Horizontal", 2, 3, 4, 3))
sketch9.addConstraint(Sketcher.Constraint("Vertical", 3, 3, 5, 3))
sketch9.addConstraint(Sketcher.Constraint("Diameter", 0, Q("3.12 mm")))
sketch9.addConstraint(Sketcher.Constraint("DistanceY", 2, 3, 1, 3, Q("1.2 mm")))
sketch9.addConstraint(Sketcher.Constraint("DistanceX", 1, 3, 4, 3, Q("23.9 mm")))
sketch9.addConstraint(Sketcher.Constraint("DistanceY", 2, 3, 5, 3, Q("7.8 mm")))
sketch9.addConstraint(Sketcher.Constraint("DistanceX", 0, 3, 1, 3, Q("9.47 mm")))
sketch9.addConstraint(Sketcher.Constraint("DistanceX", 1, 3, 2, 3, Q("10.65 mm")))
sketch9.addConstraint(Sketcher.Constraint("DistanceX", 2, 3, 3, 3, Q("6.42 mm")))
sketch9.addConstraint(Sketcher.Constraint("DistanceY", 3, 3, 2, 3, Q("7.62 mm")))
sketch9.addConstraint(Sketcher.Constraint("DistanceX", 0, 3, -1, 1, Q("8.506248 mm")))
sketch9.addConstraint(Sketcher.Constraint("DistanceY", 0, 3, -1, 1, Q("3.587463 mm")))
sketch9.setExpression("Constraints[8]", "Params.sketch9_diameter")
pad8 = body.newObject("PartDesign::Pad", "Pad007")
pad8.Profile = sketch9
pad8.setExpression("Length", "Params.pad8_length")
pad8.Reversed = True

# Sketch on XZ plane
sketch10 = body.newObject("Sketcher::SketchObject", "Sketch009")
sketch10.AttachmentSupport = (doc.getObject("XZ_Plane"), [""])
sketch10.MapMode = "FlatFace"
sketch10.AttachmentOffset = App.Placement(Vector(0, 0, -1.6), App.Rotation())
sketch10.addGeometry(Part.LineSegment(Vector(-10.716248, -16.087463, 0), Vector(-10.716248, -13.087463, 0)), False)
sketch10.addGeometry(Part.LineSegment(Vector(-10.716248, -13.087463, 0), Vector(-7.276248, -13.087463, 0)), False)
sketch10.addGeometry(Part.LineSegment(Vector(-7.276248, -13.087463, 0), Vector(-7.276248, -16.087463, 0)), False)
sketch10.addGeometry(Part.LineSegment(Vector(-7.276248, -16.087463, 0), Vector(-10.716248, -16.087463, 0)), False)
sketch10.addGeometry(Part.LineSegment(Vector(-1.276248, -16.087463, 0), Vector(-1.276248, -13.087463, 0)), False)
sketch10.addGeometry(Part.LineSegment(Vector(-1.276248, -13.087463, 0), Vector(2.163752, -13.087463, 0)), False)
sketch10.addGeometry(Part.LineSegment(Vector(2.163752, -13.087463, 0), Vector(2.163752, -16.087463, 0)), False)
sketch10.addGeometry(Part.LineSegment(Vector(2.163752, -16.087463, 0), Vector(-1.276248, -16.087463, 0)), False)
sketch10.addConstraint(Sketcher.Constraint("Coincident", 0, 2, 1, 1))
sketch10.addConstraint(Sketcher.Constraint("Coincident", 1, 2, 2, 1))
sketch10.addConstraint(Sketcher.Constraint("Coincident", 2, 2, 3, 1))
sketch10.addConstraint(Sketcher.Constraint("Coincident", 3, 2, 0, 1))
sketch10.addConstraint(Sketcher.Constraint("Coincident", 4, 2, 5, 1))
sketch10.addConstraint(Sketcher.Constraint("Coincident", 5, 2, 6, 1))
sketch10.addConstraint(Sketcher.Constraint("Coincident", 6, 2, 7, 1))
sketch10.addConstraint(Sketcher.Constraint("Coincident", 7, 2, 4, 1))
sketch10.addConstraint(Sketcher.Constraint("Vertical", 0))
sketch10.addConstraint(Sketcher.Constraint("Horizontal", 1))
sketch10.addConstraint(Sketcher.Constraint("Vertical", 2))
sketch10.addConstraint(Sketcher.Constraint("Horizontal", 3))
sketch10.addConstraint(Sketcher.Constraint("Vertical", 4))
sketch10.addConstraint(Sketcher.Constraint("Horizontal", 5))
sketch10.addConstraint(Sketcher.Constraint("Vertical", 6))
sketch10.addConstraint(Sketcher.Constraint("Horizontal", 7))
sketch10.addConstraint(Sketcher.Constraint("Horizontal", 1, 2, 4, 2))
sketch10.addConstraint(Sketcher.Constraint("Horizontal", 3, 2, 6, 2))
sketch10.addConstraint(Sketcher.Constraint("Equal", 3, 5))
sketch10.addConstraint(Sketcher.Constraint("DistanceY", 0, 1, 0, 2, Q("3 mm")))
sketch10.addConstraint(Sketcher.Constraint("DistanceX", 1, 2, 4, 2, Q("6 mm")))
sketch10.addConstraint(Sketcher.Constraint("DistanceX", 1, 1, 1, 2, Q("3.44 mm")))
sketch10.addConstraint(Sketcher.Constraint("DistanceX", 0, 2, -1, 1, Q("10.716248 mm")))
sketch10.addConstraint(Sketcher.Constraint("DistanceY", 0, 2, -1, 1, Q("13.087463 mm")))
sketch10.setExpression("Constraints[19]", "Params.sketch10_height")
sketch10.setExpression("Constraints[21]", "Params.sketch10_width")
pad9 = body.newObject("PartDesign::Pad", "Pad008")
pad9.Profile = sketch10
pad9.setExpression("Length", "Params.pad9_length")
pad9.Reversed = True

# Sketch on XZ plane
sketch11 = body.newObject("Sketcher::SketchObject", "Sketch010")
sketch11.AttachmentSupport = (doc.getObject("XZ_Plane"), [""])
sketch11.MapMode = "FlatFace"
sketch11.AttachmentOffset = App.Placement(Vector(0, 0, -2.8), App.Rotation())
sketch11.addGeometry(Part.Circle(Vector(-8.996248, -14.587463, 0), Vector(0, 0, 1), 0.875), False)
sketch11.addGeometry(Part.Circle(Vector(0.443752, -14.587463, 0), Vector(0, 0, 1), 0.875), False)
sketch11.addConstraint(Sketcher.Constraint("Equal", 0, 1))
sketch11.addConstraint(Sketcher.Constraint("Horizontal", 0, 3, 1, 3))
sketch11.addConstraint(Sketcher.Constraint("Diameter", 0, Q("1.75 mm")))
sketch11.addConstraint(Sketcher.Constraint("DistanceX", 0, 3, 1, 3, Q("9.44 mm")))
sketch11.addConstraint(Sketcher.Constraint("DistanceX", 0, 3, -1, 1, Q("8.996248 mm")))
sketch11.addConstraint(Sketcher.Constraint("DistanceY", 0, 3, -1, 1, Q("14.587463 mm")))
sketch11.setExpression("Constraints[2]", "Params.sketch11_diameter")
pad10 = body.newObject("PartDesign::Pad", "Pad009")
pad10.Profile = sketch11
pad10.setExpression("Length", "Params.pad10_length")
pad10.Reversed = True

doc.recompute()
